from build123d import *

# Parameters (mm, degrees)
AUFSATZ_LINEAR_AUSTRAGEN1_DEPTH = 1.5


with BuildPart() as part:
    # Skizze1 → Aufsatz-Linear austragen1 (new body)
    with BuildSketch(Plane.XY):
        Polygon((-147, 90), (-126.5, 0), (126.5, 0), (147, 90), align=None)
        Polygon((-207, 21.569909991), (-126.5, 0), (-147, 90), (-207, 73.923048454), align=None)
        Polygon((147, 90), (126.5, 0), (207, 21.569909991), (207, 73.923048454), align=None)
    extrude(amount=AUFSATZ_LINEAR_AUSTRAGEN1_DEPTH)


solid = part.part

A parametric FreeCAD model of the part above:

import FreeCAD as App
import Part
import Sketcher

V = App.Vector
Q = App.Units.Quantity

doc = App.newDocument("Part")
body = doc.addObject("PartDesign::Body", "Body")

sketch1 = body.newObject("Sketcher::SketchObject", "Sketch")
sketch1.AttachmentSupport = (doc.getObject("XY_Plane"), [""])
sketch1.MapMode = "FlatFace"
sketch1.addGeometry([
    Part.LineSegment(V(-126.5, 0, 0), V(126.5, 0, 0)),
    Part.LineSegment(V(126.5, 0, 0), V(207, 21.56991, 0)),
    Part.LineSegment(V(207, 21.56991, 0), V(207, 73.923048, 0)),
    Part.LineSegment(V(207, 73.923048, 0), V(147, 90, 0)),
    Part.LineSegment(V(147, 90, 0), V(-147, 90, 0)),
    Part.LineSegment(V(-147, 90, 0), V(-207, 73.923048, 0)),
    Part.LineSegment(V(-207, 73.923048, 0), V(-207, 21.56991, 0)),
    Part.LineSegment(V(-207, 21.56991, 0), V(-126.5, 0, 0)),
], False)
sketch1.addConstraint([
    Sketcher.Constraint("Coincident", 0, 2, 1, 1),
    Sketcher.Constraint("Coincident", 1, 2, 2, 1),
    Sketcher.Constraint("Coincident", 2, 2, 3, 1),
    Sketcher.Constraint("Coincident", 3, 2, 4, 1),
    Sketcher.Constraint("Coincident", 4, 2, 5, 1),
    Sketcher.Constraint("Coincident", 5, 2, 6, 1),
    Sketcher.Constraint("Coincident", 6, 2, 7, 1),
    Sketcher.Constraint("Coincident", 7, 2, 0, 1),
    Sketcher.Constraint("Horizontal", 0),
    Sketcher.Constraint("Vertical", 2),
    Sketcher.Constraint("Horizontal", 4),
    Sketcher.Constraint("Vertical", 6),
    Sketcher.Constraint("Symmetric", 0, 2, 7, 2, -1, 1),
    Sketcher.Constraint("Symmetric", 2, 2, 5, 2, -2),
    Sketcher.Constraint("Parallel", 1, 5),
    Sketcher.Constraint("Parallel", 3, 7),
    Sketcher.Constraint("Horizontal", 1, 2, 6, 2),
    Sketcher.Constraint("DistanceX", 0, 1, 0, 2, Q("253 mm")),
    Sketcher.Constraint("DistanceX", 4, 2, 4, 1, Q("294 mm")),
    Sketcher.Constraint("Angle", 1, Q("15 deg")),
    Sketcher.Constraint("DistanceX", -1, 1, 1, 2, Q("207 mm")),
    Sketcher.Constraint("DistanceY", -1, 1, 3, 2, Q("90 mm")),
])
pad1 = body.newObject("PartDesign::Pad", "Pad")
pad1.Profile = sketch1
pad1.Length = 1.5

doc.recompute()
